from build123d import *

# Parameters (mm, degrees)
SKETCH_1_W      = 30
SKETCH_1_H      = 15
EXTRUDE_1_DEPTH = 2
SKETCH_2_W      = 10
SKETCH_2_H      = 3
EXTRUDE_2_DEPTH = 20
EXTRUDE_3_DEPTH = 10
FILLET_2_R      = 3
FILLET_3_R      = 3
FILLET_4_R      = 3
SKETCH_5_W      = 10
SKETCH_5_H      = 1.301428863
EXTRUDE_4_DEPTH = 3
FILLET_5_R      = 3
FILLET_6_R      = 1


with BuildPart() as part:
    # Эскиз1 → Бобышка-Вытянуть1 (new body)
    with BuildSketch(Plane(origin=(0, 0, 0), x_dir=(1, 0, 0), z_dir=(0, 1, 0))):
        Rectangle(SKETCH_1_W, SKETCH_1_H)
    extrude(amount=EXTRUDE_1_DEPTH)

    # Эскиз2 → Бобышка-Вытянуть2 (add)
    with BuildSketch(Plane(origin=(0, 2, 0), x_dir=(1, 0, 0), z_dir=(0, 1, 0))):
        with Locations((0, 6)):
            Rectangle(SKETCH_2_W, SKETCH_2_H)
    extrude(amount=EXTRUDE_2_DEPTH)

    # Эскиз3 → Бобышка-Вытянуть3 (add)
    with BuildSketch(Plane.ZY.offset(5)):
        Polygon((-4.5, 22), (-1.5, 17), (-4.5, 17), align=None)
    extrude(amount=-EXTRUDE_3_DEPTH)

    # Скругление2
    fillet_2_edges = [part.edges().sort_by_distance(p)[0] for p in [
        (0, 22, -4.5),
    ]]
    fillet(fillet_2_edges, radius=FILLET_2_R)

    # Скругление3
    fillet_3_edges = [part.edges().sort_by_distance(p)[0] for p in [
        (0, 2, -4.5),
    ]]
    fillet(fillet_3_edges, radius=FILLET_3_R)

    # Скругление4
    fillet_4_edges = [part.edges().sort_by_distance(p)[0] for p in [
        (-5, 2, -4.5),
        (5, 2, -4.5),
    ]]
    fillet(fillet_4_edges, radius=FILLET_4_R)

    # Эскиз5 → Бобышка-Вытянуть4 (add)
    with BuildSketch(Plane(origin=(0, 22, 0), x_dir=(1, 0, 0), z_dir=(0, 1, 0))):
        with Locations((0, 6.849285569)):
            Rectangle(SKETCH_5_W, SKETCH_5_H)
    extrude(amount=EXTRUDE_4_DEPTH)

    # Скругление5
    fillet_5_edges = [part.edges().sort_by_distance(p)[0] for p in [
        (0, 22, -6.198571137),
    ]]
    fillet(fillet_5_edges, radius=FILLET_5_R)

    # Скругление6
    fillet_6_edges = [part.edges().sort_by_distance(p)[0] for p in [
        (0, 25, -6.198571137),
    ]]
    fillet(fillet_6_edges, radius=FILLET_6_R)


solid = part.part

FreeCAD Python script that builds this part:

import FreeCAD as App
import Part
import Sketcher
Q = App.Units.Quantity


def edges_at(feature, points):
    """Names of the edges that pass closest to the given points."""
    edges = feature.Shape.Edges
    near = lambda p: min(range(len(edges)), key=lambda i: edges[i].distToShape(Part.Vertex(*p))[0])
    return sorted({f"Edge{near(p) + 1}" for p in points})


def add_polygon(sketch, points):
    """Adds a closed chain of lines whose ends are joined by coincident constraints."""
    first, n = sketch.GeometryCount, len(points)
    for a, b in zip(points, points[1:] + points[:1]):
        sketch.addGeometry(Part.LineSegment(App.Vector(*a, 0), App.Vector(*b, 0)), False)
    for i in range(n):
        sketch.addConstraint(Sketcher.Constraint("Coincident", first + i, 2, first + (i + 1) % n, 1))

doc = App.newDocument("Part")
body = doc.addObject("PartDesign::Body", "Body")

# Sketch on XZ plane
sketch1 = doc.addObject("Sketcher::SketchObject", "Sketch")
body.addObject(sketch1)
sketch1.AttachmentSupport = (doc.XZ_Plane, [""])
sketch1.MapMode = "FlatFace"
add_polygon(sketch1, [(-15, -8), (-15, 8), (15, 8), (15, -8)])  # lines 0-3
sketch1.addConstraint([
    Sketcher.Constraint("Vertical", 0),
    Sketcher.Constraint("Horizontal", 1),
    Sketcher.Constraint("Vertical", 2),
    Sketcher.Constraint("Horizontal", 3),
    Sketcher.Constraint("Symmetric", 0, 2, 2, 2, -1, 1),
    Sketcher.Constraint("DistanceX", 1, 1, 1, 2, Q("30 mm")),
    Sketcher.Constraint("DistanceY", 0, 1, 0, 2, Q("15 mm")),
])
pad1 = doc.addObject("PartDesign::Pad", "Pad")
body.addObject(pad1)
pad1.Profile = sketch1
pad1.Length = 2
pad1.Reversed = True

# Sketch on XZ plane
sketch2 = doc.addObject("Sketcher::SketchObject", "Sketch001")
body.addObject(sketch2)
sketch2.AttachmentSupport = (doc.XZ_Plane, [""])
sketch2.MapMode = "FlatFace"
sketch2.AttachmentOffset = App.Placement(App.Vector(0, 0, -2), App.Rotation())
add_polygon(sketch2, [(-5, -7.5), (-5, -4.5), (5, -4.5), (5, -7.5)])  # lines 0-3
sketch2.addConstraint([
    Sketcher.Constraint("Vertical", 0),
    Sketcher.Constraint("Horizontal", 1),
    Sketcher.Constraint("Vertical", 2),
    Sketcher.Constraint("Horizontal", 3),
    Sketcher.Constraint("DistanceX", 1, 1, 1, 2, Q("10 mm")),
    Sketcher.Constraint("DistanceY", 0, 1, 0, 2, Q("3 mm")),
    Sketcher.Constraint("DistanceX", 0, 2, -1, 1, Q("5 mm")),
    Sketcher.Constraint("DistanceY", 0, 2, -1, 1, Q("4.5 mm")),
])
pad2 = doc.addObject("PartDesign::Pad", "Pad001")
body.addObject(pad2)
pad2.Profile = sketch2
pad2.Length = 20
pad2.Reversed = True

# Sketch on YZ plane
sketch3 = doc.addObject("Sketcher::SketchObject", "Sketch002")
body.addObject(sketch3)
sketch3.AttachmentSupport = (doc.YZ_Plane, [""])
sketch3.MapMode = "FlatFace"
sketch3.AttachmentOffset = App.Placement(App.Vector(0, 0, -5), App.Rotation())
add_polygon(sketch3, [(17, -1.5), (22, -4.5), (17, -4.5)])  # lines 0-2
sketch3.addConstraint([
    Sketcher.Constraint("Horizontal", 1),
    Sketcher.Constraint("Vertical", 2),
    Sketcher.Constraint("DistanceX", 1, 2, 1, 1, Q("5 mm")),
    Sketcher.Constraint("DistanceY", 2, 1, 2, 2, Q("3 mm")),
    Sketcher.Constraint("DistanceX", -1, 1, 0, 2, Q("22 mm")),
    Sketcher.Constraint("DistanceY", 0, 2, -1, 1, Q("4.5 mm")),
])
pad3 = doc.addObject("PartDesign::Pad", "Pad002")
body.addObject(pad3)
pad3.Profile = sketch3
pad3.Length = 10
doc.recompute()

fillet = doc.addObject("PartDesign::Fillet", "Fillet")
body.addObject(fillet)
fillet.Base = (pad3, edges_at(pad3, [(0, 22, -4.5)]))
fillet.Radius = 3
doc.recompute()

fillet2 = doc.addObject("PartDesign::Fillet", "Fillet001")
body.addObject(fillet2)
fillet2.Base = (fillet, edges_at(fillet, [(0, 2, -4.5)]))
fillet2.Radius = 3
doc.recompute()

fillet3 = doc.addObject("PartDesign::Fillet", "Fillet002")
body.addObject(fillet3)
fillet3.Base = (fillet2, edges_at(fillet2, [(-5, 2, -4.5), (5, 2, -4.5)]))
fillet3.Radius = 3

# Sketch on XZ plane
sketch4 = doc.addObject("Sketcher::SketchObject", "Sketch003")
body.addObject(sketch4)
sketch4.AttachmentSupport = (doc.XZ_Plane, [""])
sketch4.MapMode = "FlatFace"
sketch4.AttachmentOffset = App.Placement(App.Vector(0, 0, -22), App.Rotation())
add_polygon(sketch4, [(-5, -7.5), (-5, -6.2), (5, -6.2), (5, -7.5)])  # lines 0-3
sketch4.addConstraint([
    Sketcher.Constraint("Vertical", 0),
    Sketcher.Constraint("Horizontal", 1),
    Sketcher.Constraint("Vertical", 2),
    Sketcher.Constraint("Horizontal", 3),
    Sketcher.Constraint("DistanceX", 1, 1, 1, 2, Q("10 mm")),
    Sketcher.Constraint("DistanceX", 0, 2, -1, 1, Q("5 mm")),
    Sketcher.Constraint("DistanceY", 2, 2, -1, 1, Q("7.5 mm")),
    Sketcher.Constraint("DistanceY", 0, 1, 0, 2, Q("1.301429 mm")),
])
pad4 = doc.addObject("PartDesign::Pad", "Pad003")
body.addObject(pad4)
pad4.Profile = sketch4
pad4.Length = 3
pad4.Reversed = True
doc.recompute()

fillet4 = doc.addObject("PartDesign::Fillet", "Fillet003")
body.addObject(fillet4)
fillet4.Base = (pad4, edges_at(pad4, [(0, 22, -6.199)]))
fillet4.Radius = 3
doc.recompute()

fillet5 = doc.addObject("PartDesign::Fillet", "Fillet004")
body.addObject(fillet5)
fillet5.Base = (fillet4, edges_at(fillet4, [(0, 25, -6.199)]))
fillet5.Radius = 1

doc.recompute()
